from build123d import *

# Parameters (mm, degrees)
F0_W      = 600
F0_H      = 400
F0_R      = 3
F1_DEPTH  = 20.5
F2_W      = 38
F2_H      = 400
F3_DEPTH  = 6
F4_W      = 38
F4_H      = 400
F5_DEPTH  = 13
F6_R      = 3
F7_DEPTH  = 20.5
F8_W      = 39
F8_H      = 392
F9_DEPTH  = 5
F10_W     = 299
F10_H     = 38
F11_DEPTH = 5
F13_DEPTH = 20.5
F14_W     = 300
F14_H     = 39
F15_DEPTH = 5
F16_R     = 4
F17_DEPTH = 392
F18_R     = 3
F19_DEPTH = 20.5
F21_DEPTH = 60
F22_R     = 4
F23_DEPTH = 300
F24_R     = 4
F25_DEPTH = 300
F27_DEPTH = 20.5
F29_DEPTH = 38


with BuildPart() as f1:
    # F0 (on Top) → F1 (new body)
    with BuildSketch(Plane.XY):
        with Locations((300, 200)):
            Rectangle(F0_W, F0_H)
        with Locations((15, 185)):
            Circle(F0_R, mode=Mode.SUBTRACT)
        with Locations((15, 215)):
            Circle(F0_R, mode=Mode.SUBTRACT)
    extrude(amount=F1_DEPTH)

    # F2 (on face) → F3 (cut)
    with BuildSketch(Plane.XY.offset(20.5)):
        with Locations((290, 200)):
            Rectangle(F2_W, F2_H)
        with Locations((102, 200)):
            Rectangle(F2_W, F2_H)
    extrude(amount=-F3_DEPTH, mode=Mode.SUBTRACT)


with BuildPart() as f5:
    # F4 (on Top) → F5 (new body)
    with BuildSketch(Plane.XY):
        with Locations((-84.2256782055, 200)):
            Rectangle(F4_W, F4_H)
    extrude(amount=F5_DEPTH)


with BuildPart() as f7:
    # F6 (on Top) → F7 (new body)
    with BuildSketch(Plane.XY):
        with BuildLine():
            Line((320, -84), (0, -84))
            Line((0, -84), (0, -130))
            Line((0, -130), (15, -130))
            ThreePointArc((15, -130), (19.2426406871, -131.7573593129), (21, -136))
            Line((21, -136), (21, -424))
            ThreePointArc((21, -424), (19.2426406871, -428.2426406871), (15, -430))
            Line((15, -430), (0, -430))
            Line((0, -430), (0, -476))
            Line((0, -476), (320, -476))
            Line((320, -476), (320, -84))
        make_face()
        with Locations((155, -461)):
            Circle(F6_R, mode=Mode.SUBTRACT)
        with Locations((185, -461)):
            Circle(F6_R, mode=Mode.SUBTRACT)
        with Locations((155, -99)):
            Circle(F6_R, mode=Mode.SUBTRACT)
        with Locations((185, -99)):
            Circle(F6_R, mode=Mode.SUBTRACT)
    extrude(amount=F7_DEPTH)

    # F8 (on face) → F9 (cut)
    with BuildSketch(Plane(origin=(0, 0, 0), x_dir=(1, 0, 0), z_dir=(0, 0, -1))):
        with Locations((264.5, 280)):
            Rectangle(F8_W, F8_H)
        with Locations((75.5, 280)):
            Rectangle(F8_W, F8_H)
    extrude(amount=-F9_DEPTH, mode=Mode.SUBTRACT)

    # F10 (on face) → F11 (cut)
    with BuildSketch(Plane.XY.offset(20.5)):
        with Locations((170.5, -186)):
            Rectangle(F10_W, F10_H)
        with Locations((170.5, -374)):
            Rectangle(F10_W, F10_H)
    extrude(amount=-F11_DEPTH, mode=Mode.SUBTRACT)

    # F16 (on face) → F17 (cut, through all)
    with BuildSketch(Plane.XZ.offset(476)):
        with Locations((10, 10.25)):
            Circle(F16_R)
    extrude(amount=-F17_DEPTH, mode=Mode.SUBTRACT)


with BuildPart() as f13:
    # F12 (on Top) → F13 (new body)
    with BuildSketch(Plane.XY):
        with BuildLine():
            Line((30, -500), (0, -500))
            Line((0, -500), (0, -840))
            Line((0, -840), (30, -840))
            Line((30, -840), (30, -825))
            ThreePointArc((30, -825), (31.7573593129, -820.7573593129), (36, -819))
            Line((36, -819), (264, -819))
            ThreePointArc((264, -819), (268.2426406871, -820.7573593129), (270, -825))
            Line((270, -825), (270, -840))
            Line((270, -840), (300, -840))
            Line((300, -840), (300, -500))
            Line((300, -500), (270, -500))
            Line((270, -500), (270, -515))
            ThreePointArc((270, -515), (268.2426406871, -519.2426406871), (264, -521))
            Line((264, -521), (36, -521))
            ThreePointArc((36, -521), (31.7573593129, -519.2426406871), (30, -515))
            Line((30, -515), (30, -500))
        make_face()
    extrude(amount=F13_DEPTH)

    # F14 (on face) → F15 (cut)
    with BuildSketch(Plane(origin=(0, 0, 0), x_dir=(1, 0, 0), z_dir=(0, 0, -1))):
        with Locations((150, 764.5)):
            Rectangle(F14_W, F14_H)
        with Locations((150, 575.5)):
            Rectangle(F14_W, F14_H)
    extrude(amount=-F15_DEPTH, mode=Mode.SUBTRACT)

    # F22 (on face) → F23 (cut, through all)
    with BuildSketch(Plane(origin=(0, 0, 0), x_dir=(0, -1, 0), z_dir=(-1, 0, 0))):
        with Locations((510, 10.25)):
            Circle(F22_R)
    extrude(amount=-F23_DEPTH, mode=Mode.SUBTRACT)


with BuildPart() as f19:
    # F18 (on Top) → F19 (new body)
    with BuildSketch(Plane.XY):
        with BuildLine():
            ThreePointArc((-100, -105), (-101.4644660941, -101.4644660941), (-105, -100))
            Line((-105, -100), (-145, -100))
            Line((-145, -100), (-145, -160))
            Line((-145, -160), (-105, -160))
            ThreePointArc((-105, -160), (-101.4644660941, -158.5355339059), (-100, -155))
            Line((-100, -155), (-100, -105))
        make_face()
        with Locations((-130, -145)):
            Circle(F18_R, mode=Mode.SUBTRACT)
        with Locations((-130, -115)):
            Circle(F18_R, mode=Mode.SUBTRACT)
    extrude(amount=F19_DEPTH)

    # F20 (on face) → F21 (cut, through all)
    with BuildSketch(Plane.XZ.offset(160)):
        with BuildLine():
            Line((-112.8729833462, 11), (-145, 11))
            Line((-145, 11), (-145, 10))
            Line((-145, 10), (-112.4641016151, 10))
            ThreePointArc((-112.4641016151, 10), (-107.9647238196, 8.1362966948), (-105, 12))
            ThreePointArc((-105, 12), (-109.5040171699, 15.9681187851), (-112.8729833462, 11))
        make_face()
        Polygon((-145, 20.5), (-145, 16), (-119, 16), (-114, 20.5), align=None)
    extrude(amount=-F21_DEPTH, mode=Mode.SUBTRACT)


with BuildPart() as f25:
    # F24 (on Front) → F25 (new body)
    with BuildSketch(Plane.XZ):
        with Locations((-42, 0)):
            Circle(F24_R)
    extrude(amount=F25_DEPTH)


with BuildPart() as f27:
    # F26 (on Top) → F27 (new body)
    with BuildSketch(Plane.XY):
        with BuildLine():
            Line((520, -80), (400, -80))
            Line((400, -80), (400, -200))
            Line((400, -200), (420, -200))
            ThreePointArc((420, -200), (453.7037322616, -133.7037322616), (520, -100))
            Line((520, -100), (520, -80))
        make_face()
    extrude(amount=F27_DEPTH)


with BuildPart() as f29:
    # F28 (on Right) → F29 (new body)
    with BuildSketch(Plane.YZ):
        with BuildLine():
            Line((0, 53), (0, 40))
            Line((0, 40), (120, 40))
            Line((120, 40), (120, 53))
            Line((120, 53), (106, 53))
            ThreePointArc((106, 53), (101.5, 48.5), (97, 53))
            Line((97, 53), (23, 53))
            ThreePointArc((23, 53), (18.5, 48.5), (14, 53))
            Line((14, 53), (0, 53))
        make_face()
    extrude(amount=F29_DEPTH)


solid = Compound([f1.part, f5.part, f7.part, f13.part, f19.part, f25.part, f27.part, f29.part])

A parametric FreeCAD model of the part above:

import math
import FreeCAD as App
import Part
import Sketcher
Q = App.Units.Quantity

doc = App.newDocument("Part")
body = doc.addObject("PartDesign::Body", "Body")

sketch1 = doc.addObject("Sketcher::SketchObject", "Sketch")
body.addObject(sketch1)
sketch1.AttachmentSupport = (doc.XY_Plane, [""])
sketch1.MapMode = "FlatFace"
sketch1.addGeometry(Part.LineSegment(App.Vector(0, 400, 0), App.Vector(0, 0, 0)), False)
sketch1.addGeometry(Part.LineSegment(App.Vector(0, 0, 0), App.Vector(600, 0, 0)), False)
sketch1.addGeometry(Part.LineSegment(App.Vector(600, 0, 0), App.Vector(600, 400, 0)), False)
sketch1.addGeometry(Part.LineSegment(App.Vector(600, 400, 0), App.Vector(0, 400, 0)), False)
sketch1.addGeometry(Part.Circle(App.Vector(15, 185, 0), App.Vector(0, 0, 1), 3), False)
sketch1.addGeometry(Part.Circle(App.Vector(15, 215, 0), App.Vector(0, 0, 1), 3), False)
sketch1.addConstraint(Sketcher.Constraint("Coincident", 0, 2, 1, 1))
sketch1.addConstraint(Sketcher.Constraint("Coincident", 1, 2, 2, 1))
sketch1.addConstraint(Sketcher.Constraint("Coincident", 2, 2, 3, 1))
sketch1.addConstraint(Sketcher.Constraint("Coincident", 3, 2, 0, 1))
sketch1.addConstraint(Sketcher.Constraint("Vertical", 0))
sketch1.addConstraint(Sketcher.Constraint("Horizontal", 1))
sketch1.addConstraint(Sketcher.Constraint("Vertical", 2))
sketch1.addConstraint(Sketcher.Constraint("Horizontal", 3))
sketch1.addConstraint(Sketcher.Constraint("Coincident", 0, 2, -1, 1))
sketch1.addConstraint(Sketcher.Constraint("Equal", 4, 5))
sketch1.addConstraint(Sketcher.Constraint("Vertical", 4, 3, 5, 3))
sketch1.addConstraint(Sketcher.Constraint("Diameter", 4, Q("6 mm")))
sketch1.addConstraint(Sketcher.Constraint("DistanceX", 1, 1, 1, 2, Q("600 mm")))
sketch1.addConstraint(Sketcher.Constraint("DistanceY", 0, 2, 0, 1, Q("400 mm")))
sketch1.addConstraint(Sketcher.Constraint("DistanceX", -1, 1, 4, 3, Q("15 mm")))
sketch1.addConstraint(Sketcher.Constraint("DistanceY", -1, 1, 4, 3, Q("185 mm")))
sketch1.addConstraint(Sketcher.Constraint("DistanceY", -1, 1, 5, 3, Q("215 mm")))
pad1 = doc.addObject("PartDesign::Pad", "Pad")
body.addObject(pad1)
pad1.Profile = sketch1
pad1.Length = 20.5

sketch2 = doc.addObject("Sketcher::SketchObject", "Sketch001")
body.addObject(sketch2)
sketch2.AttachmentSupport = (doc.XY_Plane, [""])
sketch2.MapMode = "FlatFace"
sketch2.AttachmentOffset = App.Placement(App.Vector(0, 0, 20.5), App.Rotation())
sketch2.addGeometry(Part.LineSegment(App.Vector(271, 400, 0), App.Vector(271, 0, 0)), False)
sketch2.addGeometry(Part.LineSegment(App.Vector(271, 0, 0), App.Vector(309, 0, 0)), False)
sketch2.addGeometry(Part.LineSegment(App.Vector(309, 0, 0), App.Vector(309, 400, 0)), False)
sketch2.addGeometry(Part.LineSegment(App.Vector(309, 400, 0), App.Vector(271, 400, 0)), False)
sketch2.addGeometry(Part.LineSegment(App.Vector(83, 400, 0), App.Vector(83, 0, 0)), False)
sketch2.addGeometry(Part.LineSegment(App.Vector(83, 0, 0), App.Vector(121, 0, 0)), False)
sketch2.addGeometry(Part.LineSegment(App.Vector(121, 0, 0), App.Vector(121, 400, 0)), False)
sketch2.addGeometry(Part.LineSegment(App.Vector(121, 400, 0), App.Vector(83, 400, 0)), False)
sketch2.addConstraint(Sketcher.Constraint("Coincident", 0, 2, 1, 1))
sketch2.addConstraint(Sketcher.Constraint("Coincident", 1, 2, 2, 1))
sketch2.addConstraint(Sketcher.Constraint("Coincident", 2, 2, 3, 1))
sketch2.addConstraint(Sketcher.Constraint("Coincident", 3, 2, 0, 1))
sketch2.addConstraint(Sketcher.Constraint("Coincident", 4, 2, 5, 1))
sketch2.addConstraint(Sketcher.Constraint("Coincident", 5, 2, 6, 1))
sketch2.addConstraint(Sketcher.Constraint("Coincident", 6, 2, 7, 1))
sketch2.addConstraint(Sketcher.Constraint("Coincident", 7, 2, 4, 1))
sketch2.addConstraint(Sketcher.Constraint("Vertical", 0))
sketch2.addConstraint(Sketcher.Constraint("Horizontal", 1))
sketch2.addConstraint(Sketcher.Constraint("Vertical", 2))
sketch2.addConstraint(Sketcher.Constraint("Horizontal", 3))
sketch2.addConstraint(Sketcher.Constraint("Vertical", 4))
sketch2.addConstraint(Sketcher.Constraint("Horizontal", 5))
sketch2.addConstraint(Sketcher.Constraint("Vertical", 6))
sketch2.addConstraint(Sketcher.Constraint("Horizontal", 7))
sketch2.addConstraint(Sketcher.Constraint("PointOnObject", 0, 2, -1))
sketch2.addConstraint(Sketcher.Constraint("PointOnObject", 4, 2, -1))
sketch2.addConstraint(Sketcher.Constraint("Horizontal", 3, 2, 6, 2))
sketch2.addConstraint(Sketcher.Constraint("Equal", 3, 5))
sketch2.addConstraint(Sketcher.Constraint("DistanceX", 1, 1, 1, 2, Q("38 mm")))
sketch2.addConstraint(Sketcher.Constraint("DistanceY", 0, 2, 0, 1, Q("400 mm")))
sketch2.addConstraint(Sketcher.Constraint("DistanceX", -1, 1, 0, 2, Q("271 mm")))
sketch2.addConstraint(Sketcher.Constraint("DistanceX", -1, 1, 4, 2, Q("83 mm")))
pocket1 = doc.addObject("PartDesign::Pocket", "Pocket")
body.addObject(pocket1)
pocket1.Profile = sketch2
pocket1.Length = 6
body2 = doc.addObject("PartDesign::Body", "Body001")

sketch3 = doc.addObject("Sketcher::SketchObject", "Sketch002")
body2.addObject(sketch3)
sketch3.AttachmentSupport = (doc.getObject("XY_Plane001"), [""])
sketch3.MapMode = "FlatFace"
sketch3.addGeometry(Part.LineSegment(App.Vector(-103, 400, 0), App.Vector(-103, 0, 0)), False)
sketch3.addGeometry(Part.LineSegment(App.Vector(-103, 0, 0), App.Vector(-65, 0, 0)), False)
sketch3.addGeometry(Part.LineSegment(App.Vector(-65, 0, 0), App.Vector(-65, 400, 0)), False)
sketch3.addGeometry(Part.LineSegment(App.Vector(-65, 400, 0), App.Vector(-103, 400, 0)), False)
sketch3.addConstraint(Sketcher.Constraint("Coincident", 0, 2, 1, 1))
sketch3.addConstraint(Sketcher.Constraint("Coincident", 1, 2, 2, 1))
sketch3.addConstraint(Sketcher.Constraint("Coincident", 2, 2, 3, 1))
sketch3.addConstraint(Sketcher.Constraint("Coincident", 3, 2, 0, 1))
sketch3.addConstraint(Sketcher.Constraint("Vertical", 0))
sketch3.addConstraint(Sketcher.Constraint("Horizontal", 1))
sketch3.addConstraint(Sketcher.Constraint("Vertical", 2))
sketch3.addConstraint(Sketcher.Constraint("Horizontal", 3))
sketch3.addConstraint(Sketcher.Constraint("PointOnObject", 0, 2, -1))
sketch3.addConstraint(Sketcher.Constraint("DistanceX", 1, 1, 1, 2, Q("38 mm")))
sketch3.addConstraint(Sketcher.Constraint("DistanceY", 0, 2, 0, 1, Q("400 mm")))
sketch3.addConstraint(Sketcher.Constraint("DistanceX", 0, 2, -1, 1, Q("103.225678 mm")))
pad2 = doc.addObject("PartDesign::Pad", "Pad001")
body2.addObject(pad2)
pad2.Profile = sketch3
pad2.Length = 13
body3 = doc.addObject("PartDesign::Body", "Body002")

sketch4 = doc.addObject("Sketcher::SketchObject", "Sketch003")
body3.addObject(sketch4)
sketch4.AttachmentSupport = (doc.getObject("XY_Plane002"), [""])
sketch4.MapMode = "FlatFace"
sketch4.addGeometry(Part.LineSegment(App.Vector(320, -84, 0), App.Vector(0, -84, 0)), False)
sketch4.addGeometry(Part.LineSegment(App.Vector(0, -84, 0), App.Vector(0, -130, 0)), False)
sketch4.addGeometry(Part.LineSegment(App.Vector(0, -130, 0), App.Vector(15, -130, 0)), False)
sketch4.addGeometry(Part.ArcOfCircle(Part.Circle(App.Vector(15, -136, 0), App.Vector(0, 0, 1), 6), math.radians(0), math.radians(90)), False)
sketch4.addGeometry(Part.LineSegment(App.Vector(21, -136, 0), App.Vector(21, -424, 0)), False)
sketch4.addGeometry(Part.ArcOfCircle(Part.Circle(App.Vector(15, -424, 0), App.Vector(0, 0, 1), 6), math.radians(-90), math.radians(0)), False)
sketch4.addGeometry(Part.LineSegment(App.Vector(15, -430, 0), App.Vector(0, -430, 0)), False)
sketch4.addGeometry(Part.LineSegment(App.Vector(0, -430, 0), App.Vector(0, -476, 0)), False)
sketch4.addGeometry(Part.LineSegment(App.Vector(0, -476, 0), App.Vector(320, -476, 0)), False)
sketch4.addGeometry(Part.LineSegment(App.Vector(320, -476, 0), App.Vector(320, -84, 0)), False)
sketch4.addGeometry(Part.Circle(App.Vector(155, -461, 0), App.Vector(0, 0, 1), 3), False)
sketch4.addGeometry(Part.Circle(App.Vector(185, -461, 0), App.Vector(0, 0, 1), 3), False)
sketch4.addGeometry(Part.Circle(App.Vector(155, -99, 0), App.Vector(0, 0, 1), 3), False)
sketch4.addGeometry(Part.Circle(App.Vector(185, -99, 0), App.Vector(0, 0, 1), 3), False)
sketch4.addConstraint(Sketcher.Constraint("Coincident", 0, 2, 1, 1))
sketch4.addConstraint(Sketcher.Constraint("Coincident", 1, 2, 2, 1))
sketch4.addConstraint(Sketcher.Constraint("Tangent", 2, 2, 3, 2))
sketch4.addConstraint(Sketcher.Constraint("Tangent", 3, 1, 4, 1))
sketch4.addConstraint(Sketcher.Constraint("Tangent", 4, 2, 5, 2))
sketch4.addConstraint(Sketcher.Constraint("Tangent", 5, 1, 6, 1))
sketch4.addConstraint(Sketcher.Constraint("Coincident", 6, 2, 7, 1))
sketch4.addConstraint(Sketcher.Constraint("Coincident", 7, 2, 8, 1))
sketch4.addConstraint(Sketcher.Constraint("Coincident", 8, 2, 9, 1))
sketch4.addConstraint(Sketcher.Constraint("Coincident", 9, 2, 0, 1))
sketch4.addConstraint(Sketcher.Constraint("Horizontal", 0))
sketch4.addConstraint(Sketcher.Constraint("Vertical", 1))
sketch4.addConstraint(Sketcher.Constraint("Horizontal", 2))
sketch4.addConstraint(Sketcher.Constraint("Vertical", 4))
sketch4.addConstraint(Sketcher.Constraint("Horizontal", 6))
sketch4.addConstraint(Sketcher.Constraint("Vertical", 7))
sketch4.addConstraint(Sketcher.Constraint("Horizontal", 8))
sketch4.addConstraint(Sketcher.Constraint("Vertical", 9))
sketch4.addConstraint(Sketcher.Constraint("Equal", 3, 5))
sketch4.addConstraint(Sketcher.Constraint("Equal", 10, 11))
sketch4.addConstraint(Sketcher.Constraint("Equal", 11, 12))
sketch4.addConstraint(Sketcher.Constraint("Equal", 12, 13))
sketch4.addConstraint(Sketcher.Constraint("PointOnObject", 0, 2, -2))
sketch4.addConstraint(Sketcher.Constraint("PointOnObject", 6, 2, -2))
sketch4.addConstraint(Sketcher.Constraint("Horizontal", 10, 3, 11, 3))
sketch4.addConstraint(Sketcher.Constraint("Horizontal", 12, 3, 13, 3))
sketch4.addConstraint(Sketcher.Constraint("Vertical", 10, 3, 12, 3))
sketch4.addConstraint(Sketcher.Constraint("Vertical", 11, 3, 13, 3))
sketch4.addConstraint(Sketcher.Constraint("Equal", 1, 7))
sketch4.addConstraint(Sketcher.Constraint("Diameter", 10, Q("6 mm")))
sketch4.addConstraint(Sketcher.Constraint("Radius", 3, Q("6 mm")))
sketch4.addConstraint(Sketcher.Constraint("DistanceX", 0, 2, 0, 1, Q("320 mm")))
sketch4.addConstraint(Sketcher.Constraint("DistanceX", 2, 1, 2, 2, Q("15 mm")))
sketch4.addConstraint(Sketcher.Constraint("DistanceY", 1, 2, 1, 1, Q("46 mm")))
sketch4.addConstraint(Sketcher.Constraint("DistanceY", 4, 2, 4, 1, Q("288 mm")))
sketch4.addConstraint(Sketcher.Constraint("DistanceY", 3, 3, -1, 1, Q("136 mm")))
sketch4.addConstraint(Sketcher.Constraint("DistanceX", -1, 1, 10, 3, Q("155 mm")))
sketch4.addConstraint(Sketcher.Constraint("DistanceY", 10, 3, -1, 1, Q("461 mm")))
sketch4.addConstraint(Sketcher.Constraint("DistanceX", -1, 1, 11, 3, Q("185 mm")))
sketch4.addConstraint(Sketcher.Constraint("DistanceY", 12, 3, -1, 1, Q("99 mm")))
pad3 = doc.addObject("PartDesign::Pad", "Pad002")
body3.addObject(pad3)
pad3.Profile = sketch4
pad3.Length = 20.5

sketch5 = doc.addObject("Sketcher::SketchObject", "Sketch004")
body3.addObject(sketch5)
sketch5.AttachmentSupport = (doc.getObject("XY_Plane002"), [""])
sketch5.MapMode = "FlatFace"
sketch5.addGeometry(Part.LineSegment(App.Vector(245, -476, 0), App.Vector(245, -84, 0)), False)
sketch5.addGeometry(Part.LineSegment(App.Vector(245, -84, 0), App.Vector(284, -84, 0)), False)
sketch5.addGeometry(Part.LineSegment(App.Vector(284, -84, 0), App.Vector(284, -476, 0)), False)
sketch5.addGeometry(Part.LineSegment(App.Vector(284, -476, 0), App.Vector(245, -476, 0)), False)
sketch5.addGeometry(Part.LineSegment(App.Vector(56, -476, 0), App.Vector(56, -84, 0)), False)
sketch5.addGeometry(Part.LineSegment(App.Vector(56, -84, 0), App.Vector(95, -84, 0)), False)
sketch5.addGeometry(Part.LineSegment(App.Vector(95, -84, 0), App.Vector(95, -476, 0)), False)
sketch5.addGeometry(Part.LineSegment(App.Vector(95, -476, 0), App.Vector(56, -476, 0)), False)
sketch5.addConstraint(Sketcher.Constraint("Coincident", 0, 2, 1, 1))
sketch5.addConstraint(Sketcher.Constraint("Coincident", 1, 2, 2, 1))
sketch5.addConstraint(Sketcher.Constraint("Coincident", 2, 2, 3, 1))
sketch5.addConstraint(Sketcher.Constraint("Coincident", 3, 2, 0, 1))
sketch5.addConstraint(Sketcher.Constraint("Coincident", 4, 2, 5, 1))
sketch5.addConstraint(Sketcher.Constraint("Coincident", 5, 2, 6, 1))
sketch5.addConstraint(Sketcher.Constraint("Coincident", 6, 2, 7, 1))
sketch5.addConstraint(Sketcher.Constraint("Coincident", 7, 2, 4, 1))
sketch5.addConstraint(Sketcher.Constraint("Vertical", 0))
sketch5.addConstraint(Sketcher.Constraint("Horizontal", 1))
sketch5.addConstraint(Sketcher.Constraint("Vertical", 2))
sketch5.addConstraint(Sketcher.Constraint("Horizontal", 3))
sketch5.addConstraint(Sketcher.Constraint("Vertical", 4))
sketch5.addConstraint(Sketcher.Constraint("Horizontal", 5))
sketch5.addConstraint(Sketcher.Constraint("Vertical", 6))
sketch5.addConstraint(Sketcher.Constraint("Horizontal", 7))
sketch5.addConstraint(Sketcher.Constraint("Horizontal", 1, 2, 4, 2))
sketch5.addConstraint(Sketcher.Constraint("Horizontal", 3, 2, 6, 2))
sketch5.addConstraint(Sketcher.Constraint("Equal", 3, 5))
sketch5.addConstraint(Sketcher.Constraint("DistanceX", 1, 1, 1, 2, Q("39 mm")))
sketch5.addConstraint(Sketcher.Constraint("DistanceY", 0, 1, 0, 2, Q("392 mm")))
sketch5.addConstraint(Sketcher.Constraint("DistanceX", -1, 1, 0, 2, Q("245 mm")))
sketch5.addConstraint(Sketcher.Constraint("DistanceY", 0, 2, -1, 1, Q("84 mm")))
sketch5.addConstraint(Sketcher.Constraint("DistanceX", -1, 1, 4, 2, Q("56 mm")))
pocket2 = doc.addObject("PartDesign::Pocket", "Pocket001")
body3.addObject(pocket2)
pocket2.Profile = sketch5
pocket2.Length = 5
pocket2.Reversed = True

sketch6 = doc.addObject("Sketcher::SketchObject", "Sketch005")
body3.addObject(sketch6)
sketch6.AttachmentSupport = (doc.getObject("XY_Plane002"), [""])
sketch6.MapMode = "FlatFace"
sketch6.AttachmentOffset = App.Placement(App.Vector(0, 0, 20.5), App.Rotation())
sketch6.addGeometry(Part.LineSegment(App.Vector(21, -167, 0), App.Vector(21, -205, 0)), False)
sketch6.addGeometry(Part.LineSegment(App.Vector(21, -205, 0), App.Vector(320, -205, 0)), False)
sketch6.addGeometry(Part.LineSegment(App.Vector(320, -205, 0), App.Vector(320, -167, 0)), False)
sketch6.addGeometry(Part.LineSegment(App.Vector(320, -167, 0), App.Vector(21, -167, 0)), False)
sketch6.addGeometry(Part.LineSegment(App.Vector(21, -355, 0), App.Vector(21, -393, 0)), False)
sketch6.addGeometry(Part.LineSegment(App.Vector(21, -393, 0), App.Vector(320, -393, 0)), False)
sketch6.addGeometry(Part.LineSegment(App.Vector(320, -393, 0), App.Vector(320, -355, 0)), False)
sketch6.addGeometry(Part.LineSegment(App.Vector(320, -355, 0), App.Vector(21, -355, 0)), False)
sketch6.addConstraint(Sketcher.Constraint("Coincident", 0, 2, 1, 1))
sketch6.addConstraint(Sketcher.Constraint("Coincident", 1, 2, 2, 1))
sketch6.addConstraint(Sketcher.Constraint("Coincident", 2, 2, 3, 1))
sketch6.addConstraint(Sketcher.Constraint("Coincident", 3, 2, 0, 1))
sketch6.addConstraint(Sketcher.Constraint("Coincident", 4, 2, 5, 1))
sketch6.addConstraint(Sketcher.Constraint("Coincident", 5, 2, 6, 1))
sketch6.addConstraint(Sketcher.Constraint("Coincident", 6, 2, 7, 1))
sketch6.addConstraint(Sketcher.Constraint("Coincident", 7, 2, 4, 1))
sketch6.addConstraint(Sketcher.Constraint("Vertical", 0))
sketch6.addConstraint(Sketcher.Constraint("Horizontal", 1))
sketch6.addConstraint(Sketcher.Constraint("Vertical", 2))
sketch6.addConstraint(Sketcher.Constraint("Horizontal", 3))
sketch6.addConstraint(Sketcher.Constraint("Vertical", 4))
sketch6.addConstraint(Sketcher.Constraint("Horizontal", 5))
sketch6.addConstraint(Sketcher.Constraint("Vertical", 6))
sketch6.addConstraint(Sketcher.Constraint("Horizontal", 7))
sketch6.addConstraint(Sketcher.Constraint("Vertical", 3, 2, 4, 2))
sketch6.addConstraint(Sketcher.Constraint("Vertical", 2, 2, 5, 2))
sketch6.addConstraint(Sketcher.Constraint("Equal", 2, 4))
sketch6.addConstraint(Sketcher.Constraint("DistanceX", 1, 1, 1, 2, Q("299 mm")))
sketch6.addConstraint(Sketcher.Constraint("DistanceY", 0, 2, 0, 1, Q("38 mm")))
sketch6.addConstraint(Sketcher.Constraint("DistanceX", -1, 1, 0, 2, Q("21 mm")))
sketch6.addConstraint(Sketcher.Constraint("DistanceY", 0, 2, -1, 1, Q("205 mm")))
sketch6.addConstraint(Sketcher.Constraint("DistanceY", 4, 2, -1, 1, Q("393 mm")))
pocket3 = doc.addObject("PartDesign::Pocket", "Pocket002")
body3.addObject(pocket3)
pocket3.Profile = sketch6
pocket3.Length = 5

sketch7 = doc.addObject("Sketcher::SketchObject", "Sketch006")
body3.addObject(sketch7)
sketch7.AttachmentSupport = (doc.getObject("XZ_Plane002"), [""])
sketch7.MapMode = "FlatFace"
sketch7.AttachmentOffset = App.Placement(App.Vector(0, 0, 476), App.Rotation())
sketch7.addGeometry(Part.Circle(App.Vector(10, 10.2, 0), App.Vector(0, 0, 1), 4), False)
sketch7.addConstraint(Sketcher.Constraint("Diameter", 0, Q("8 mm")))
sketch7.addConstraint(Sketcher.Constraint("DistanceX", -1, 1, 0, 3, Q("10 mm")))
sketch7.addConstraint(Sketcher.Constraint("DistanceY", -1, 1, 0, 3, Q("10.25 mm")))
pocket4 = doc.addObject("PartDesign::Pocket", "Pocket003")
body3.addObject(pocket4)
pocket4.Profile = sketch7
pocket4.Type = "ThroughAll"
body4 = doc.addObject("PartDesign::Body", "Body003")

sketch8 = doc.addObject("Sketcher::SketchObject", "Sketch007")
body4.addObject(sketch8)
sketch8.AttachmentSupport = (doc.getObject("XY_Plane003"), [""])
sketch8.MapMode = "FlatFace"
sketch8.addGeometry(Part.LineSegment(App.Vector(30, -500, 0), App.Vector(0, -500, 0)), False)
sketch8.addGeometry(Part.LineSegment(App.Vector(0, -500, 0), App.Vector(0, -840, 0)), False)
sketch8.addGeometry(Part.LineSegment(App.Vector(0, -840, 0), App.Vector(30, -840, 0)), False)
sketch8.addGeometry(Part.LineSegment(App.Vector(30, -840, 0), App.Vector(30, -825, 0)), False)
sketch8.addGeometry(Part.ArcOfCircle(Part.Circle(App.Vector(36, -825, 0), App.Vector(0, 0, 1), 6), math.radians(90), math.radians(180)), False)
sketch8.addGeometry(Part.LineSegment(App.Vector(36, -819, 0), App.Vector(264, -819, 0)), False)
sketch8.addGeometry(Part.ArcOfCircle(Part.Circle(App.Vector(264, -825, 0), App.Vector(0, 0, 1), 6), math.radians(0), math.radians(90)), False)
sketch8.addGeometry(Part.LineSegment(App.Vector(270, -825, 0), App.Vector(270, -840, 0)), False)
sketch8.addGeometry(Part.LineSegment(App.Vector(270, -840, 0), App.Vector(300, -840, 0)), False)
sketch8.addGeometry(Part.LineSegment(App.Vector(300, -840, 0), App.Vector(300, -500, 0)), False)
sketch8.addGeometry(Part.LineSegment(App.Vector(300, -500, 0), App.Vector(270, -500, 0)), False)
sketch8.addGeometry(Part.LineSegment(App.Vector(270, -500, 0), App.Vector(270, -515, 0)), False)
sketch8.addGeometry(Part.ArcOfCircle(Part.Circle(App.Vector(264, -515, 0), App.Vector(0, 0, 1), 6), math.radians(-90), math.radians(0)), False)
sketch8.addGeometry(Part.LineSegment(App.Vector(264, -521, 0), App.Vector(36, -521, 0)), False)
sketch8.addGeometry(Part.ArcOfCircle(Part.Circle(App.Vector(36, -515, 0), App.Vector(0, 0, 1), 6), math.radians(180), math.radians(270)), False)
sketch8.addGeometry(Part.LineSegment(App.Vector(30, -515, 0), App.Vector(30, -500, 0)), False)
sketch8.addConstraint(Sketcher.Constraint("Coincident", 0, 2, 1, 1))
sketch8.addConstraint(Sketcher.Constraint("Coincident", 1, 2, 2, 1))
sketch8.addConstraint(Sketcher.Constraint("Coincident", 2, 2, 3, 1))
sketch8.addConstraint(Sketcher.Constraint("Tangent", 3, 2, 4, 2))
sketch8.addConstraint(Sketcher.Constraint("Tangent", 4, 1, 5, 1))
sketch8.addConstraint(Sketcher.Constraint("Tangent", 5, 2, 6, 2))
sketch8.addConstraint(Sketcher.Constraint("Tangent", 6, 1, 7, 1))
sketch8.addConstraint(Sketcher.Constraint("Coincident", 7, 2, 8, 1))
sketch8.addConstraint(Sketcher.Constraint("Coincident", 8, 2, 9, 1))
sketch8.addConstraint(Sketcher.Constraint("Coincident", 9, 2, 10, 1))
sketch8.addConstraint(Sketcher.Constraint("Coincident", 10, 2, 11, 1))
sketch8.addConstraint(Sketcher.Constraint("Tangent", 11, 2, 12, 2))
sketch8.addConstraint(Sketcher.Constraint("Tangent", 12, 1, 13, 1))
sketch8.addConstraint(Sketcher.Constraint("Tangent", 13, 2, 14, 2))
sketch8.addConstraint(Sketcher.Constraint("Tangent", 14, 1, 15, 1))
sketch8.addConstraint(Sketcher.Constraint("Coincident", 15, 2, 0, 1))
sketch8.addConstraint(Sketcher.Constraint("Horizontal", 0))
sketch8.addConstraint(Sketcher.Constraint("Vertical", 1))
sketch8.addConstraint(Sketcher.Constraint("Horizontal", 2))
sketch8.addConstraint(Sketcher.Constraint("Vertical", 3))
sketch8.addConstraint(Sketcher.Constraint("Horizontal", 5))
sketch8.addConstraint(Sketcher.Constraint("Vertical", 7))
sketch8.addConstraint(Sketcher.Constraint("Horizontal", 8))
sketch8.addConstraint(Sketcher.Constraint("Vertical", 9))
sketch8.addConstraint(Sketcher.Constraint("Horizontal", 10))
sketch8.addConstraint(Sketcher.Constraint("Vertical", 11))
sketch8.addConstraint(Sketcher.Constraint("Horizontal", 13))
sketch8.addConstraint(Sketcher.Constraint("Vertical", 15))
sketch8.addConstraint(Sketcher.Constraint("Equal", 4, 6))
sketch8.addConstraint(Sketcher.Constraint("Equal", 6, 12))
sketch8.addConstraint(Sketcher.Constraint("Equal", 12, 14))
sketch8.addConstraint(Sketcher.Constraint("PointOnObject", 0, 2, -2))
sketch8.addConstraint(Sketcher.Constraint("Horizontal", 2, 2, 7, 2))
sketch8.addConstraint(Sketcher.Constraint("Horizontal", 0, 2, 9, 2))
sketch8.addConstraint(Sketcher.Constraint("Vertical", 6, 3, 12, 3))
sketch8.addConstraint(Sketcher.Constraint("Vertical", 4, 3, 14, 3))
sketch8.addConstraint(Sketcher.Constraint("Equal", 2, 8))
sketch8.addConstraint(Sketcher.Constraint("Equal", 7, 11))
sketch8.addConstraint(Sketcher.Constraint("Radius", 4, Q("6 mm")))
sketch8.addConstraint(Sketcher.Constraint("DistanceX", 0, 2, 0, 1, Q("30 mm")))
sketch8.addConstraint(Sketcher.Constraint("DistanceX", 5, 1, 5, 2, Q("228 mm")))
sketch8.addConstraint(Sketcher.Constraint("DistanceY", 1, 2, 1, 1, Q("340 mm")))
sketch8.addConstraint(Sketcher.Constraint("DistanceY", 3, 1, 3, 2, Q("15 mm")))
sketch8.addConstraint(Sketcher.Constraint("DistanceY", 4, 3, -1, 1, Q("825 mm")))
pad4 = doc.addObject("PartDesign::Pad", "Pad003")
body4.addObject(pad4)
pad4.Profile = sketch8
pad4.Length = 20.5

sketch9 = doc.addObject("Sketcher::SketchObject", "Sketch008")
body4.addObject(sketch9)
sketch9.AttachmentSupport = (doc.getObject("XY_Plane003"), [""])
sketch9.MapMode = "FlatFace"
sketch9.addGeometry(Part.LineSegment(App.Vector(0, -784, 0), App.Vector(0, -745, 0)), False)
sketch9.addGeometry(Part.LineSegment(App.Vector(0, -745, 0), App.Vector(300, -745, 0)), False)
sketch9.addGeometry(Part.LineSegment(App.Vector(300, -745, 0), App.Vector(300, -784, 0)), False)
sketch9.addGeometry(Part.LineSegment(App.Vector(300, -784, 0), App.Vector(0, -784, 0)), False)
sketch9.addGeometry(Part.LineSegment(App.Vector(0, -595, 0), App.Vector(0, -556, 0)), False)
sketch9.addGeometry(Part.LineSegment(App.Vector(0, -556, 0), App.Vector(300, -556, 0)), False)
sketch9.addGeometry(Part.LineSegment(App.Vector(300, -556, 0), App.Vector(300, -595, 0)), False)
sketch9.addGeometry(Part.LineSegment(App.Vector(300, -595, 0), App.Vector(0, -595, 0)), False)
sketch9.addConstraint(Sketcher.Constraint("Coincident", 0, 2, 1, 1))
sketch9.addConstraint(Sketcher.Constraint("Coincident", 1, 2, 2, 1))
sketch9.addConstraint(Sketcher.Constraint("Coincident", 2, 2, 3, 1))
sketch9.addConstraint(Sketcher.Constraint("Coincident", 3, 2, 0, 1))
sketch9.addConstraint(Sketcher.Constraint("Coincident", 4, 2, 5, 1))
sketch9.addConstraint(Sketcher.Constraint("Coincident", 5, 2, 6, 1))
sketch9.addConstraint(Sketcher.Constraint("Coincident", 6, 2, 7, 1))
sketch9.addConstraint(Sketcher.Constraint("Coincident", 7, 2, 4, 1))
sketch9.addConstraint(Sketcher.Constraint("Vertical", 0))
sketch9.addConstraint(Sketcher.Constraint("Horizontal", 1))
sketch9.addConstraint(Sketcher.Constraint("Vertical", 2))
sketch9.addConstraint(Sketcher.Constraint("Horizontal", 3))
sketch9.addConstraint(Sketcher.Constraint("Vertical", 4))
sketch9.addConstraint(Sketcher.Constraint("Horizontal", 5))
sketch9.addConstraint(Sketcher.Constraint("Vertical", 6))
sketch9.addConstraint(Sketcher.Constraint("Horizontal", 7))
sketch9.addConstraint(Sketcher.Constraint("PointOnObject", 0, 2, -2))
sketch9.addConstraint(Sketcher.Constraint("PointOnObject", 4, 2, -2))
sketch9.addConstraint(Sketcher.Constraint("Vertical", 2, 2, 5, 2))
sketch9.addConstraint(Sketcher.Constraint("Equal", 2, 4))
sketch9.addConstraint(Sketcher.Constraint("DistanceX", 1, 1, 1, 2, Q("300 mm")))
sketch9.addConstraint(Sketcher.Constraint("DistanceY", 0, 1, 0, 2, Q("39 mm")))
sketch9.addConstraint(Sketcher.Constraint("DistanceY", 0, 2, -1, 1, Q("745 mm")))
sketch9.addConstraint(Sketcher.Constraint("DistanceY", 4, 2, -1, 1, Q("556 mm")))
pocket5 = doc.addObject("PartDesign::Pocket", "Pocket004")
body4.addObject(pocket5)
pocket5.Profile = sketch9
pocket5.Length = 5
pocket5.Reversed = True

sketch10 = doc.addObject("Sketcher::SketchObject", "Sketch009")
body4.addObject(sketch10)
sketch10.AttachmentSupport = (doc.getObject("YZ_Plane003"), [""])
sketch10.MapMode = "FlatFace"
sketch10.addGeometry(Part.Circle(App.Vector(-510, 10.2, 0), App.Vector(0, 0, 1), 4), False)
sketch10.addConstraint(Sketcher.Constraint("Diameter", 0, Q("8 mm")))
sketch10.addConstraint(Sketcher.Constraint("DistanceX", 0, 3, -1, 1, Q("510 mm")))
sketch10.addConstraint(Sketcher.Constraint("DistanceY", -1, 1, 0, 3, Q("10.25 mm")))
pocket6 = doc.addObject("PartDesign::Pocket", "Pocket005")
body4.addObject(pocket6)
pocket6.Profile = sketch10
pocket6.Type = "ThroughAll"
pocket6.Reversed = True
body5 = doc.addObject("PartDesign::Body", "Body004")

sketch11 = doc.addObject("Sketcher::SketchObject", "Sketch010")
body5.addObject(sketch11)
sketch11.AttachmentSupport = (doc.getObject("XY_Plane004"), [""])
sketch11.MapMode = "FlatFace"
sketch11.addGeometry(Part.ArcOfCircle(Part.Circle(App.Vector(-105, -105, 0), App.Vector(0, 0, 1), 5), math.radians(0), math.radians(90)), False)
sketch11.addGeometry(Part.LineSegment(App.Vector(-105, -100, 0), App.Vector(-145, -100, 0)), False)
sketch11.addGeometry(Part.LineSegment(App.Vector(-145, -100, 0), App.Vector(-145, -160, 0)), False)
sketch11.addGeometry(Part.LineSegment(App.Vector(-145, -160, 0), App.Vector(-105, -160, 0)), False)
sketch11.addGeometry(Part.ArcOfCircle(Part.Circle(App.Vector(-105, -155, 0), App.Vector(0, 0, 1), 5), math.radians(-90), math.radians(0)), False)
sketch11.addGeometry(Part.LineSegment(App.Vector(-100, -155, 0), App.Vector(-100, -105, 0)), False)
sketch11.addGeometry(Part.Circle(App.Vector(-130, -145, 0), App.Vector(0, 0, 1), 3), False)
sketch11.addGeometry(Part.Circle(App.Vector(-130, -115, 0), App.Vector(0, 0, 1), 3), False)
sketch11.addConstraint(Sketcher.Constraint("Tangent", 0, 2, 1, 1))
sketch11.addConstraint(Sketcher.Constraint("Coincident", 1, 2, 2, 1))
sketch11.addConstraint(Sketcher.Constraint("Coincident", 2, 2, 3, 1))
sketch11.addConstraint(Sketcher.Constraint("Tangent", 3, 2, 4, 1))
sketch11.addConstraint(Sketcher.Constraint("Tangent", 4, 2, 5, 1))
sketch11.addConstraint(Sketcher.Constraint("Tangent", 5, 2, 0, 1))
sketch11.addConstraint(Sketcher.Constraint("Horizontal", 1))
sketch11.addConstraint(Sketcher.Constraint("Vertical", 2))
sketch11.addConstraint(Sketcher.Constraint("Horizontal", 3))
sketch11.addConstraint(Sketcher.Constraint("Vertical", 5))
sketch11.addConstraint(Sketcher.Constraint("Equal", 0, 4))
sketch11.addConstraint(Sketcher.Constraint("Equal", 6, 7))
sketch11.addConstraint(Sketcher.Constraint("Vertical", 6, 3, 7, 3))
sketch11.addConstraint(Sketcher.Constraint("Diameter", 6, Q("6 mm")))
sketch11.addConstraint(Sketcher.Constraint("Radius", 0, Q("5 mm")))
sketch11.addConstraint(Sketcher.Constraint("DistanceX", 1, 2, 1, 1, Q("40 mm")))
sketch11.addConstraint(Sketcher.Constraint("DistanceY", 2, 2, 2, 1, Q("60 mm")))
sketch11.addConstraint(Sketcher.Constraint("DistanceX", 0, 3, -1, 1, Q("105 mm")))
sketch11.addConstraint(Sketcher.Constraint("DistanceY", 0, 3, -1, 1, Q("105 mm")))
sketch11.addConstraint(Sketcher.Constraint("DistanceX", 6, 3, -1, 1, Q("130 mm")))
sketch11.addConstraint(Sketcher.Constraint("DistanceY", 6, 3, -1, 1, Q("145 mm")))
sketch11.addConstraint(Sketcher.Constraint("DistanceY", 7, 3, -1, 1, Q("115 mm")))
pad5 = doc.addObject("PartDesign::Pad", "Pad004")
body5.addObject(pad5)
pad5.Profile = sketch11
pad5.Length = 20.5

sketch12 = doc.addObject("Sketcher::SketchObject", "Sketch011")
body5.addObject(sketch12)
sketch12.AttachmentSupport = (doc.getObject("XZ_Plane004"), [""])
sketch12.MapMode = "FlatFace"
sketch12.AttachmentOffset = App.Placement(App.Vector(0, 0, 160), App.Rotation())
sketch12.addGeometry(Part.LineSegment(App.Vector(-112.9, 11, 0), App.Vector(-145, 11, 0)), False)
sketch12.addGeometry(Part.LineSegment(App.Vector(-145, 11, 0), App.Vector(-145, 10, 0)), False)
sketch12.addGeometry(Part.LineSegment(App.Vector(-145, 10, 0), App.Vector(-112.5, 10, 0)), False)
sketch12.addGeometry(Part.ArcOfCircle(Part.Circle(App.Vector(-109, 12, 0), App.Vector(0, 0, 1), 4), math.radians(-150), math.radians(0)), False)
sketch12.addGeometry(Part.ArcOfCircle(Part.Circle(App.Vector(-109, 12, 0), App.Vector(0, 0, 1), 4), math.radians(0), math.radians(194)), False)
sketch12.addGeometry(Part.LineSegment(App.Vector(-145, 20.5, 0), App.Vector(-145, 16, 0)), False)
sketch12.addGeometry(Part.LineSegment(App.Vector(-145, 16, 0), App.Vector(-119, 16, 0)), False)
sketch12.addGeometry(Part.LineSegment(App.Vector(-119, 16, 0), App.Vector(-114, 20.5, 0)), False)
sketch12.addGeometry(Part.LineSegment(App.Vector(-114, 20.5, 0), App.Vector(-145, 20.5, 0)), False)
sketch12.addConstraint(Sketcher.Constraint("Coincident", 0, 2, 1, 1))
sketch12.addConstraint(Sketcher.Constraint("Coincident", 1, 2, 2, 1))
sketch12.addConstraint(Sketcher.Constraint("Coincident", 2, 2, 3, 1))
sketch12.addConstraint(Sketcher.Constraint("Tangent", 3, 2, 4, 1))
sketch12.addConstraint(Sketcher.Constraint("Coincident", 4, 2, 0, 1))
sketch12.addConstraint(Sketcher.Constraint("Coincident", 5, 2, 6, 1))
sketch12.addConstraint(Sketcher.Constraint("Coincident", 6, 2, 7, 1))
sketch12.addConstraint(Sketcher.Constraint("Coincident", 7, 2, 8, 1))
sketch12.addConstraint(Sketcher.Constraint("Coincident", 8, 2, 5, 1))
sketch12.addConstraint(Sketcher.Constraint("Horizontal", 0))
sketch12.addConstraint(Sketcher.Constraint("Vertical", 1))
sketch12.addConstraint(Sketcher.Constraint("Horizontal", 2))
sketch12.addConstraint(Sketcher.Constraint("Vertical", 5))
sketch12.addConstraint(Sketcher.Constraint("Horizontal", 6))
sketch12.addConstraint(Sketcher.Constraint("Horizontal", 8))
sketch12.addConstraint(Sketcher.Constraint("Equal", 3, 4))
sketch12.addConstraint(Sketcher.Constraint("Horizontal", 4, 3, 3, 2))
sketch12.addConstraint(Sketcher.Constraint("Vertical", 1, 2, 5, 2))
sketch12.addConstraint(Sketcher.Constraint("Radius", 3, Q("4 mm")))
sketch12.addConstraint(Sketcher.Constraint("DistanceX", 6, 1, 6, 2, Q("26 mm")))
sketch12.addConstraint(Sketcher.Constraint("DistanceX", 8, 2, 8, 1, Q("31 mm")))
sketch12.addConstraint(Sketcher.Constraint("DistanceY", 1, 2, 1, 1, Q("1 mm")))
sketch12.addConstraint(Sketcher.Constraint("DistanceY", 5, 2, 5, 1, Q("4.5 mm")))
sketch12.addConstraint(Sketcher.Constraint("DistanceX", 3, 3, -1, 1, Q("109 mm")))
sketch12.addConstraint(Sketcher.Constraint("DistanceY", -1, 1, 3, 3, Q("12 mm")))
sketch12.addConstraint(Sketcher.Constraint("DistanceX", 0, 2, -1, 1, Q("145 mm")))
sketch12.addConstraint(Sketcher.Constraint("DistanceY", -1, 1, 0, 2, Q("11 mm")))
sketch12.addConstraint(Sketcher.Constraint("DistanceY", -1, 1, 5, 2, Q("16 mm")))
pocket7 = doc.addObject("PartDesign::Pocket", "Pocket006")
body5.addObject(pocket7)
pocket7.Profile = sketch12
pocket7.Type = "ThroughAll"
body6 = doc.addObject("PartDesign::Body", "Body005")

sketch13 = doc.addObject("Sketcher::SketchObject", "Sketch012")
body6.addObject(sketch13)
sketch13.AttachmentSupport = (doc.getObject("XZ_Plane005"), [""])
sketch13.MapMode = "FlatFace"
sketch13.addGeometry(Part.Circle(App.Vector(-42, 0, 0), App.Vector(0, 0, 1), 4), False)
sketch13.addConstraint(Sketcher.Constraint("PointOnObject", 0, 3, -1))
sketch13.addConstraint(Sketcher.Constraint("Diameter", 0, Q("8 mm")))
sketch13.addConstraint(Sketcher.Constraint("DistanceX", 0, 3, -1, 1, Q("42 mm")))
pad6 = doc.addObject("PartDesign::Pad", "Pad005")
body6.addObject(pad6)
pad6.Profile = sketch13
pad6.Length = 300
body7 = doc.addObject("PartDesign::Body", "Body006")

sketch14 = doc.addObject("Sketcher::SketchObject", "Sketch013")
body7.addObject(sketch14)
sketch14.AttachmentSupport = (doc.getObject("XY_Plane006"), [""])
sketch14.MapMode = "FlatFace"
sketch14.addGeometry(Part.LineSegment(App.Vector(520, -80, 0), App.Vector(400, -80, 0)), False)
sketch14.addGeometry(Part.LineSegment(App.Vector(400, -80, 0), App.Vector(400, -200, 0)), False)
sketch14.addGeometry(Part.LineSegment(App.Vector(400, -200, 0), App.Vector(420, -200, 0)), False)
sketch14.addGeometry(Part.ArcOfCircle(Part.Circle(App.Vector(539, -219, 0), App.Vector(0, 0, 1), 120), math.radians(99), math.radians(171)), False)
sketch14.addGeometry(Part.LineSegment(App.Vector(520, -100, 0), App.Vector(520, -80, 0)), False)
sketch14.addConstraint(Sketcher.Constraint("Coincident", 0, 2, 1, 1))
sketch14.addConstraint(Sketcher.Constraint("Coincident", 1, 2, 2, 1))
sketch14.addConstraint(Sketcher.Constraint("Coincident", 2, 2, 3, 2))
sketch14.addConstraint(Sketcher.Constraint("Coincident", 3, 1, 4, 1))
sketch14.addConstraint(Sketcher.Constraint("Coincident", 4, 2, 0, 1))
sketch14.addConstraint(Sketcher.Constraint("Horizontal", 0))
sketch14.addConstraint(Sketcher.Constraint("Vertical", 1))
sketch14.addConstraint(Sketcher.Constraint("Horizontal", 2))
sketch14.addConstraint(Sketcher.Constraint("Vertical", 4))
sketch14.addConstraint(Sketcher.Constraint("Equal", 0, 1))
sketch14.addConstraint(Sketcher.Constraint("Equal", 2, 4))
sketch14.addConstraint(Sketcher.Constraint("Radius", 3, Q("120 mm")))
sketch14.addConstraint(Sketcher.Constraint("DistanceX", 0, 2, 0, 1, Q("120 mm")))
sketch14.addConstraint(Sketcher.Constraint("DistanceX", 2, 1, 2, 2, Q("20 mm")))
sketch14.addConstraint(Sketcher.Constraint("DistanceX", -1, 1, 0, 2, Q("400 mm")))
sketch14.addConstraint(Sketcher.Constraint("DistanceY", 0, 2, -1, 1, Q("80 mm")))
pad7 = doc.addObject("PartDesign::Pad", "Pad006")
body7.addObject(pad7)
pad7.Profile = sketch14
pad7.Length = 20.5
body8 = doc.addObject("PartDesign::Body", "Body007")

sketch15 = doc.addObject("Sketcher::SketchObject", "Sketch014")
body8.addObject(sketch15)
sketch15.AttachmentSupport = (doc.getObject("YZ_Plane007"), [""])
sketch15.MapMode = "FlatFace"
sketch15.addGeometry(Part.LineSegment(App.Vector(0, 53, 0), App.Vector(0, 40, 0)), False)
sketch15.addGeometry(Part.LineSegment(App.Vector(0, 40, 0), App.Vector(120, 40, 0)), False)
sketch15.addGeometry(Part.LineSegment(App.Vector(120, 40, 0), App.Vector(120, 53, 0)), False)
sketch15.addGeometry(Part.LineSegment(App.Vector(120, 53, 0), App.Vector(106, 53, 0)), False)
sketch15.addGeometry(Part.ArcOfCircle(Part.Circle(App.Vector(101.5, 53, 0), App.Vector(0, 0, 1), 4.5), math.radians(180), math.radians(360)), False)
sketch15.addGeometry(Part.LineSegment(App.Vector(97, 53, 0), App.Vector(23, 53, 0)), False)
sketch15.addGeometry(Part.ArcOfCircle(Part.Circle(App.Vector(18.5, 53, 0), App.Vector(0, 0, 1), 4.5), math.radians(180), math.radians(360)), False)
sketch15.addGeometry(Part.LineSegment(App.Vector(14, 53, 0), App.Vector(0, 53, 0)), False)
sketch15.addConstraint(Sketcher.Constraint("Coincident", 0, 2, 1, 1))
sketch15.addConstraint(Sketcher.Constraint("Coincident", 1, 2, 2, 1))
sketch15.addConstraint(Sketcher.Constraint("Coincident", 2, 2, 3, 1))
sketch15.addConstraint(Sketcher.Constraint("Coincident", 3, 2, 4, 2))
sketch15.addConstraint(Sketcher.Constraint("Coincident", 4, 1, 5, 1))
sketch15.addConstraint(Sketcher.Constraint("Coincident", 5, 2, 6, 2))
sketch15.addConstraint(Sketcher.Constraint("Coincident", 6, 1, 7, 1))
sketch15.addConstraint(Sketcher.Constraint("Coincident", 7, 2, 0, 1))
sketch15.addConstraint(Sketcher.Constraint("Vertical", 0))
sketch15.addConstraint(Sketcher.Constraint("Horizontal", 1))
sketch15.addConstraint(Sketcher.Constraint("Vertical", 2))
sketch15.addConstraint(Sketcher.Constraint("Horizontal", 3))
sketch15.addConstraint(Sketcher.Constraint("Horizontal", 5))
sketch15.addConstraint(Sketcher.Constraint("Horizontal", 7))
sketch15.addConstraint(Sketcher.Constraint("Equal", 4, 6))
sketch15.addConstraint(Sketcher.Constraint("PointOnObject", 0, 2, -2))
sketch15.addConstraint(Sketcher.Constraint("Horizontal", 4, 3, 6, 3))
sketch15.addConstraint(Sketcher.Constraint("Horizontal", 6, 3, 2, 2))
sketch15.addConstraint(Sketcher.Constraint("Horizontal", 3, 2, 4, 1))
sketch15.addConstraint(Sketcher.Constraint("Horizontal", 5, 2, 6, 1))
sketch15.addConstraint(Sketcher.Constraint("Equal", 3, 7))
sketch15.addConstraint(Sketcher.Constraint("Radius", 4, Q("4.5 mm")))
sketch15.addConstraint(Sketcher.Constraint("DistanceX", 1, 1, 1, 2, Q("120 mm")))
sketch15.addConstraint(Sketcher.Constraint("DistanceX", 3, 2, 3, 1, Q("14 mm")))
sketch15.addConstraint(Sketcher.Constraint("DistanceY", 0, 2, 0, 1, Q("13 mm")))
sketch15.addConstraint(Sketcher.Constraint("DistanceY", -1, 1, 4, 3, Q("53 mm")))
pad8 = doc.addObject("PartDesign::Pad", "Pad007")
body8.addObject(pad8)
pad8.Profile = sketch15
pad8.Length = 38

doc.recompute()
